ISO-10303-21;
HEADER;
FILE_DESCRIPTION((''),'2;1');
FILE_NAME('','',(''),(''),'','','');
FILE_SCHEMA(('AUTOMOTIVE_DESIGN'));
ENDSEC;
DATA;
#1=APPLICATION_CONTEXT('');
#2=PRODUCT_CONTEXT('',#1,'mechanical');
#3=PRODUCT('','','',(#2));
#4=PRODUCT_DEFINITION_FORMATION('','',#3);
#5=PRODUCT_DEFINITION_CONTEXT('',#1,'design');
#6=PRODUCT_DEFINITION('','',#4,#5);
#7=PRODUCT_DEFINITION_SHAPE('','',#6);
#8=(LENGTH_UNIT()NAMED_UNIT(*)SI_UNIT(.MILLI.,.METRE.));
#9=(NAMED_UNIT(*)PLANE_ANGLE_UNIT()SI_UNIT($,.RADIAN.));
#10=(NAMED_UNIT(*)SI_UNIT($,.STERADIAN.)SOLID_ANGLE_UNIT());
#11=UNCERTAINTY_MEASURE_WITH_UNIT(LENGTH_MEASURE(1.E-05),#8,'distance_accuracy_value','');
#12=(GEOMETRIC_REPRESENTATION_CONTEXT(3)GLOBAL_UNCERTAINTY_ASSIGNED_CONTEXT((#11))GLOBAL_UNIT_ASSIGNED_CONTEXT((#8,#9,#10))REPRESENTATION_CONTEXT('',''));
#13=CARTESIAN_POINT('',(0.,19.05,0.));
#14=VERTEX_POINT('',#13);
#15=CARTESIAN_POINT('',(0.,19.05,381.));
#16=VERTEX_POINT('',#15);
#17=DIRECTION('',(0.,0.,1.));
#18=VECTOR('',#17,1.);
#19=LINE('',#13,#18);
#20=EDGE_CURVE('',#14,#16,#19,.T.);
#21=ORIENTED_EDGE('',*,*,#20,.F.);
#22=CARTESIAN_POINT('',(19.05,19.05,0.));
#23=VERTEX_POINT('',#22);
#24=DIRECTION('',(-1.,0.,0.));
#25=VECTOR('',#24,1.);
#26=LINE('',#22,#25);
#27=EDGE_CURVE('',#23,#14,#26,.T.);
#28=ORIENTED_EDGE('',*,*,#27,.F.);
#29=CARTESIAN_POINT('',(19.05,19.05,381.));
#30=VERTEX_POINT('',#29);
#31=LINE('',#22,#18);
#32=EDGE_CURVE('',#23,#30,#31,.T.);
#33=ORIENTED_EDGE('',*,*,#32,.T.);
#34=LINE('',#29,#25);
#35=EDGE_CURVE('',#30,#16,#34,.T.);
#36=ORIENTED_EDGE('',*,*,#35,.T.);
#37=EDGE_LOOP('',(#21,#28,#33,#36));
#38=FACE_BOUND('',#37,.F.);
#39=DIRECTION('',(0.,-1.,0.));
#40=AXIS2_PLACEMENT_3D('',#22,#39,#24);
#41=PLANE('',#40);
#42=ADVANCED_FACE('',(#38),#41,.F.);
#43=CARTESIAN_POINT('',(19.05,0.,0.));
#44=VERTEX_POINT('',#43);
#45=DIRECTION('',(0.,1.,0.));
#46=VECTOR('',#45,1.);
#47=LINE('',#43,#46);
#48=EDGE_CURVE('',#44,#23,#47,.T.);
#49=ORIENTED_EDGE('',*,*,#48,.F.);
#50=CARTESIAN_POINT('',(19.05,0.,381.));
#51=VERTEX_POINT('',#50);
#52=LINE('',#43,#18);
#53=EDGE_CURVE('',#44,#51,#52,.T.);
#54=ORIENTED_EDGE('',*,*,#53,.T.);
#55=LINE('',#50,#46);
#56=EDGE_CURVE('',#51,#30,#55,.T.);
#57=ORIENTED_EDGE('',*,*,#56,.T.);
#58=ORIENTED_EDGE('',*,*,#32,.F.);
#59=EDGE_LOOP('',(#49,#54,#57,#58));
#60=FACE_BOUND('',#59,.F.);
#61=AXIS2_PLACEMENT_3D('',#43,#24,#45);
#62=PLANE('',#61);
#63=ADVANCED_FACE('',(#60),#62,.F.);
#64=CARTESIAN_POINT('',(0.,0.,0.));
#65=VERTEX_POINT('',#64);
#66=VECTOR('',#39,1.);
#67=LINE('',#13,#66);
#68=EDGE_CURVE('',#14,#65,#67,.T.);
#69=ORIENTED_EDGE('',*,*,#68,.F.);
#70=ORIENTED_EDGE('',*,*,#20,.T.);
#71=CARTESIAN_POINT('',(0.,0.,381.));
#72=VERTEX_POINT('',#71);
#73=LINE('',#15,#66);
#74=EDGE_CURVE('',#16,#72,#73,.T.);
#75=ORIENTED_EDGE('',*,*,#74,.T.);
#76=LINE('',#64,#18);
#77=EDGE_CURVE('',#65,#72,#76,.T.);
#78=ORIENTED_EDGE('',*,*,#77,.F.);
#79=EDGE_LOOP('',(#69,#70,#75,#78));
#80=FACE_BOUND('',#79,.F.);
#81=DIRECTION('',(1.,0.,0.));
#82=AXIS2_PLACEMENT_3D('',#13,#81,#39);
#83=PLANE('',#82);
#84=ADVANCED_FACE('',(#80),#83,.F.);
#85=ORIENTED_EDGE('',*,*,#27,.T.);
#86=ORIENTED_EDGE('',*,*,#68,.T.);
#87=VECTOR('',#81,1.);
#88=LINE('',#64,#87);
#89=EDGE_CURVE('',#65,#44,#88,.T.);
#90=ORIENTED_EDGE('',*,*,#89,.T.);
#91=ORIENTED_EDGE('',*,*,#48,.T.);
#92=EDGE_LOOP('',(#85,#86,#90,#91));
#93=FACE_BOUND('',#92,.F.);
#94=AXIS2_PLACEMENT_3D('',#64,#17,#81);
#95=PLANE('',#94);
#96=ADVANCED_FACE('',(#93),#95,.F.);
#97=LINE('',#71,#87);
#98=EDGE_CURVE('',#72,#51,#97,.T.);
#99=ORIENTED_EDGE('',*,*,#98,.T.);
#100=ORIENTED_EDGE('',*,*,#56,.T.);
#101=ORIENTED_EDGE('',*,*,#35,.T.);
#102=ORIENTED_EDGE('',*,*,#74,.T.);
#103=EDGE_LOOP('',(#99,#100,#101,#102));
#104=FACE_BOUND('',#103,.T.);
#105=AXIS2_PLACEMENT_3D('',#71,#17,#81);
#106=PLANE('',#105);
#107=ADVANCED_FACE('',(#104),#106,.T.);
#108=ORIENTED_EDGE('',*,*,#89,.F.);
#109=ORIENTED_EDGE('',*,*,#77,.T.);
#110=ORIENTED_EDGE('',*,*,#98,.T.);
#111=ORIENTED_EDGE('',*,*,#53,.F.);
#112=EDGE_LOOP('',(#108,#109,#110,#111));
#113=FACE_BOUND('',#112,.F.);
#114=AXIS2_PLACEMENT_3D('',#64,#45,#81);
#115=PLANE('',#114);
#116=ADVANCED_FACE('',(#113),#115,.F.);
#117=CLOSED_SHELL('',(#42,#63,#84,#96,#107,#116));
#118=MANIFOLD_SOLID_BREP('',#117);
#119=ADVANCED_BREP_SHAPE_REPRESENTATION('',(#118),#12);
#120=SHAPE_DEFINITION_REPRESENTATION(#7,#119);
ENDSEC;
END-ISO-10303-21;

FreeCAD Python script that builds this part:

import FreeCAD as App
import Part
import Sketcher
from FreeCAD import Vector
Q = App.Units.Quantity

doc = App.newDocument("Part")
params = doc.addObject("Spreadsheet::Sheet", "Params")
for row, (alias, value) in enumerate([
    ("sketch1_width", "0.75 in"),
    ("pad1_length", "15 in"),
], start=1):
    params.set(f"A{row}", alias)
    params.set(f"B{row}", "=" + value)
    params.setAlias(f"B{row}", alias)

body = doc.addObject("PartDesign::Body", "Body")

sketch1 = body.newObject("Sketcher::SketchObject", "Sketch")
sketch1.AttachmentSupport = (doc.getObject("XY_Plane"), [""])
sketch1.MapMode = "FlatFace"
sketch1.addGeometry(Part.LineSegment(Vector(0, 19, 0), Vector(0, 0, 0)), False)
sketch1.addGeometry(Part.LineSegment(Vector(0, 0, 0), Vector(19, 0, 0)), False)
sketch1.addGeometry(Part.LineSegment(Vector(19, 0, 0), Vector(19, 19, 0)), False)
sketch1.addGeometry(Part.LineSegment(Vector(19, 19, 0), Vector(0, 19, 0)), False)
sketch1.addConstraint(Sketcher.Constraint("Coincident", 0, 2, 1, 1))
sketch1.addConstraint(Sketcher.Constraint("Coincident", 1, 2, 2, 1))
sketch1.addConstraint(Sketcher.Constraint("Coincident", 2, 2, 3, 1))
sketch1.addConstraint(Sketcher.Constraint("Coincident", 3, 2, 0, 1))
sketch1.addConstraint(Sketcher.Constraint("Vertical", 0))
sketch1.addConstraint(Sketcher.Constraint("Horizontal", 1))
sketch1.addConstraint(Sketcher.Constraint("Vertical", 2))
sketch1.addConstraint(Sketcher.Constraint("Horizontal", 3))
sketch1.addConstraint(Sketcher.Constraint("Coincident", 0, 2, -1, 1))
sketch1.addConstraint(Sketcher.Constraint("Equal", 3, 0))
sketch1.addConstraint(Sketcher.Constraint("DistanceX", 1, 1, 1, 2, Q("0.75 in")))
sketch1.setExpression("Constraints[10]", "Params.sketch1_width")
pad1 = body.newObject("PartDesign::Pad", "Pad")
pad1.Profile = sketch1
pad1.setExpression("Length", "Params.pad1_length")

doc.recompute()
